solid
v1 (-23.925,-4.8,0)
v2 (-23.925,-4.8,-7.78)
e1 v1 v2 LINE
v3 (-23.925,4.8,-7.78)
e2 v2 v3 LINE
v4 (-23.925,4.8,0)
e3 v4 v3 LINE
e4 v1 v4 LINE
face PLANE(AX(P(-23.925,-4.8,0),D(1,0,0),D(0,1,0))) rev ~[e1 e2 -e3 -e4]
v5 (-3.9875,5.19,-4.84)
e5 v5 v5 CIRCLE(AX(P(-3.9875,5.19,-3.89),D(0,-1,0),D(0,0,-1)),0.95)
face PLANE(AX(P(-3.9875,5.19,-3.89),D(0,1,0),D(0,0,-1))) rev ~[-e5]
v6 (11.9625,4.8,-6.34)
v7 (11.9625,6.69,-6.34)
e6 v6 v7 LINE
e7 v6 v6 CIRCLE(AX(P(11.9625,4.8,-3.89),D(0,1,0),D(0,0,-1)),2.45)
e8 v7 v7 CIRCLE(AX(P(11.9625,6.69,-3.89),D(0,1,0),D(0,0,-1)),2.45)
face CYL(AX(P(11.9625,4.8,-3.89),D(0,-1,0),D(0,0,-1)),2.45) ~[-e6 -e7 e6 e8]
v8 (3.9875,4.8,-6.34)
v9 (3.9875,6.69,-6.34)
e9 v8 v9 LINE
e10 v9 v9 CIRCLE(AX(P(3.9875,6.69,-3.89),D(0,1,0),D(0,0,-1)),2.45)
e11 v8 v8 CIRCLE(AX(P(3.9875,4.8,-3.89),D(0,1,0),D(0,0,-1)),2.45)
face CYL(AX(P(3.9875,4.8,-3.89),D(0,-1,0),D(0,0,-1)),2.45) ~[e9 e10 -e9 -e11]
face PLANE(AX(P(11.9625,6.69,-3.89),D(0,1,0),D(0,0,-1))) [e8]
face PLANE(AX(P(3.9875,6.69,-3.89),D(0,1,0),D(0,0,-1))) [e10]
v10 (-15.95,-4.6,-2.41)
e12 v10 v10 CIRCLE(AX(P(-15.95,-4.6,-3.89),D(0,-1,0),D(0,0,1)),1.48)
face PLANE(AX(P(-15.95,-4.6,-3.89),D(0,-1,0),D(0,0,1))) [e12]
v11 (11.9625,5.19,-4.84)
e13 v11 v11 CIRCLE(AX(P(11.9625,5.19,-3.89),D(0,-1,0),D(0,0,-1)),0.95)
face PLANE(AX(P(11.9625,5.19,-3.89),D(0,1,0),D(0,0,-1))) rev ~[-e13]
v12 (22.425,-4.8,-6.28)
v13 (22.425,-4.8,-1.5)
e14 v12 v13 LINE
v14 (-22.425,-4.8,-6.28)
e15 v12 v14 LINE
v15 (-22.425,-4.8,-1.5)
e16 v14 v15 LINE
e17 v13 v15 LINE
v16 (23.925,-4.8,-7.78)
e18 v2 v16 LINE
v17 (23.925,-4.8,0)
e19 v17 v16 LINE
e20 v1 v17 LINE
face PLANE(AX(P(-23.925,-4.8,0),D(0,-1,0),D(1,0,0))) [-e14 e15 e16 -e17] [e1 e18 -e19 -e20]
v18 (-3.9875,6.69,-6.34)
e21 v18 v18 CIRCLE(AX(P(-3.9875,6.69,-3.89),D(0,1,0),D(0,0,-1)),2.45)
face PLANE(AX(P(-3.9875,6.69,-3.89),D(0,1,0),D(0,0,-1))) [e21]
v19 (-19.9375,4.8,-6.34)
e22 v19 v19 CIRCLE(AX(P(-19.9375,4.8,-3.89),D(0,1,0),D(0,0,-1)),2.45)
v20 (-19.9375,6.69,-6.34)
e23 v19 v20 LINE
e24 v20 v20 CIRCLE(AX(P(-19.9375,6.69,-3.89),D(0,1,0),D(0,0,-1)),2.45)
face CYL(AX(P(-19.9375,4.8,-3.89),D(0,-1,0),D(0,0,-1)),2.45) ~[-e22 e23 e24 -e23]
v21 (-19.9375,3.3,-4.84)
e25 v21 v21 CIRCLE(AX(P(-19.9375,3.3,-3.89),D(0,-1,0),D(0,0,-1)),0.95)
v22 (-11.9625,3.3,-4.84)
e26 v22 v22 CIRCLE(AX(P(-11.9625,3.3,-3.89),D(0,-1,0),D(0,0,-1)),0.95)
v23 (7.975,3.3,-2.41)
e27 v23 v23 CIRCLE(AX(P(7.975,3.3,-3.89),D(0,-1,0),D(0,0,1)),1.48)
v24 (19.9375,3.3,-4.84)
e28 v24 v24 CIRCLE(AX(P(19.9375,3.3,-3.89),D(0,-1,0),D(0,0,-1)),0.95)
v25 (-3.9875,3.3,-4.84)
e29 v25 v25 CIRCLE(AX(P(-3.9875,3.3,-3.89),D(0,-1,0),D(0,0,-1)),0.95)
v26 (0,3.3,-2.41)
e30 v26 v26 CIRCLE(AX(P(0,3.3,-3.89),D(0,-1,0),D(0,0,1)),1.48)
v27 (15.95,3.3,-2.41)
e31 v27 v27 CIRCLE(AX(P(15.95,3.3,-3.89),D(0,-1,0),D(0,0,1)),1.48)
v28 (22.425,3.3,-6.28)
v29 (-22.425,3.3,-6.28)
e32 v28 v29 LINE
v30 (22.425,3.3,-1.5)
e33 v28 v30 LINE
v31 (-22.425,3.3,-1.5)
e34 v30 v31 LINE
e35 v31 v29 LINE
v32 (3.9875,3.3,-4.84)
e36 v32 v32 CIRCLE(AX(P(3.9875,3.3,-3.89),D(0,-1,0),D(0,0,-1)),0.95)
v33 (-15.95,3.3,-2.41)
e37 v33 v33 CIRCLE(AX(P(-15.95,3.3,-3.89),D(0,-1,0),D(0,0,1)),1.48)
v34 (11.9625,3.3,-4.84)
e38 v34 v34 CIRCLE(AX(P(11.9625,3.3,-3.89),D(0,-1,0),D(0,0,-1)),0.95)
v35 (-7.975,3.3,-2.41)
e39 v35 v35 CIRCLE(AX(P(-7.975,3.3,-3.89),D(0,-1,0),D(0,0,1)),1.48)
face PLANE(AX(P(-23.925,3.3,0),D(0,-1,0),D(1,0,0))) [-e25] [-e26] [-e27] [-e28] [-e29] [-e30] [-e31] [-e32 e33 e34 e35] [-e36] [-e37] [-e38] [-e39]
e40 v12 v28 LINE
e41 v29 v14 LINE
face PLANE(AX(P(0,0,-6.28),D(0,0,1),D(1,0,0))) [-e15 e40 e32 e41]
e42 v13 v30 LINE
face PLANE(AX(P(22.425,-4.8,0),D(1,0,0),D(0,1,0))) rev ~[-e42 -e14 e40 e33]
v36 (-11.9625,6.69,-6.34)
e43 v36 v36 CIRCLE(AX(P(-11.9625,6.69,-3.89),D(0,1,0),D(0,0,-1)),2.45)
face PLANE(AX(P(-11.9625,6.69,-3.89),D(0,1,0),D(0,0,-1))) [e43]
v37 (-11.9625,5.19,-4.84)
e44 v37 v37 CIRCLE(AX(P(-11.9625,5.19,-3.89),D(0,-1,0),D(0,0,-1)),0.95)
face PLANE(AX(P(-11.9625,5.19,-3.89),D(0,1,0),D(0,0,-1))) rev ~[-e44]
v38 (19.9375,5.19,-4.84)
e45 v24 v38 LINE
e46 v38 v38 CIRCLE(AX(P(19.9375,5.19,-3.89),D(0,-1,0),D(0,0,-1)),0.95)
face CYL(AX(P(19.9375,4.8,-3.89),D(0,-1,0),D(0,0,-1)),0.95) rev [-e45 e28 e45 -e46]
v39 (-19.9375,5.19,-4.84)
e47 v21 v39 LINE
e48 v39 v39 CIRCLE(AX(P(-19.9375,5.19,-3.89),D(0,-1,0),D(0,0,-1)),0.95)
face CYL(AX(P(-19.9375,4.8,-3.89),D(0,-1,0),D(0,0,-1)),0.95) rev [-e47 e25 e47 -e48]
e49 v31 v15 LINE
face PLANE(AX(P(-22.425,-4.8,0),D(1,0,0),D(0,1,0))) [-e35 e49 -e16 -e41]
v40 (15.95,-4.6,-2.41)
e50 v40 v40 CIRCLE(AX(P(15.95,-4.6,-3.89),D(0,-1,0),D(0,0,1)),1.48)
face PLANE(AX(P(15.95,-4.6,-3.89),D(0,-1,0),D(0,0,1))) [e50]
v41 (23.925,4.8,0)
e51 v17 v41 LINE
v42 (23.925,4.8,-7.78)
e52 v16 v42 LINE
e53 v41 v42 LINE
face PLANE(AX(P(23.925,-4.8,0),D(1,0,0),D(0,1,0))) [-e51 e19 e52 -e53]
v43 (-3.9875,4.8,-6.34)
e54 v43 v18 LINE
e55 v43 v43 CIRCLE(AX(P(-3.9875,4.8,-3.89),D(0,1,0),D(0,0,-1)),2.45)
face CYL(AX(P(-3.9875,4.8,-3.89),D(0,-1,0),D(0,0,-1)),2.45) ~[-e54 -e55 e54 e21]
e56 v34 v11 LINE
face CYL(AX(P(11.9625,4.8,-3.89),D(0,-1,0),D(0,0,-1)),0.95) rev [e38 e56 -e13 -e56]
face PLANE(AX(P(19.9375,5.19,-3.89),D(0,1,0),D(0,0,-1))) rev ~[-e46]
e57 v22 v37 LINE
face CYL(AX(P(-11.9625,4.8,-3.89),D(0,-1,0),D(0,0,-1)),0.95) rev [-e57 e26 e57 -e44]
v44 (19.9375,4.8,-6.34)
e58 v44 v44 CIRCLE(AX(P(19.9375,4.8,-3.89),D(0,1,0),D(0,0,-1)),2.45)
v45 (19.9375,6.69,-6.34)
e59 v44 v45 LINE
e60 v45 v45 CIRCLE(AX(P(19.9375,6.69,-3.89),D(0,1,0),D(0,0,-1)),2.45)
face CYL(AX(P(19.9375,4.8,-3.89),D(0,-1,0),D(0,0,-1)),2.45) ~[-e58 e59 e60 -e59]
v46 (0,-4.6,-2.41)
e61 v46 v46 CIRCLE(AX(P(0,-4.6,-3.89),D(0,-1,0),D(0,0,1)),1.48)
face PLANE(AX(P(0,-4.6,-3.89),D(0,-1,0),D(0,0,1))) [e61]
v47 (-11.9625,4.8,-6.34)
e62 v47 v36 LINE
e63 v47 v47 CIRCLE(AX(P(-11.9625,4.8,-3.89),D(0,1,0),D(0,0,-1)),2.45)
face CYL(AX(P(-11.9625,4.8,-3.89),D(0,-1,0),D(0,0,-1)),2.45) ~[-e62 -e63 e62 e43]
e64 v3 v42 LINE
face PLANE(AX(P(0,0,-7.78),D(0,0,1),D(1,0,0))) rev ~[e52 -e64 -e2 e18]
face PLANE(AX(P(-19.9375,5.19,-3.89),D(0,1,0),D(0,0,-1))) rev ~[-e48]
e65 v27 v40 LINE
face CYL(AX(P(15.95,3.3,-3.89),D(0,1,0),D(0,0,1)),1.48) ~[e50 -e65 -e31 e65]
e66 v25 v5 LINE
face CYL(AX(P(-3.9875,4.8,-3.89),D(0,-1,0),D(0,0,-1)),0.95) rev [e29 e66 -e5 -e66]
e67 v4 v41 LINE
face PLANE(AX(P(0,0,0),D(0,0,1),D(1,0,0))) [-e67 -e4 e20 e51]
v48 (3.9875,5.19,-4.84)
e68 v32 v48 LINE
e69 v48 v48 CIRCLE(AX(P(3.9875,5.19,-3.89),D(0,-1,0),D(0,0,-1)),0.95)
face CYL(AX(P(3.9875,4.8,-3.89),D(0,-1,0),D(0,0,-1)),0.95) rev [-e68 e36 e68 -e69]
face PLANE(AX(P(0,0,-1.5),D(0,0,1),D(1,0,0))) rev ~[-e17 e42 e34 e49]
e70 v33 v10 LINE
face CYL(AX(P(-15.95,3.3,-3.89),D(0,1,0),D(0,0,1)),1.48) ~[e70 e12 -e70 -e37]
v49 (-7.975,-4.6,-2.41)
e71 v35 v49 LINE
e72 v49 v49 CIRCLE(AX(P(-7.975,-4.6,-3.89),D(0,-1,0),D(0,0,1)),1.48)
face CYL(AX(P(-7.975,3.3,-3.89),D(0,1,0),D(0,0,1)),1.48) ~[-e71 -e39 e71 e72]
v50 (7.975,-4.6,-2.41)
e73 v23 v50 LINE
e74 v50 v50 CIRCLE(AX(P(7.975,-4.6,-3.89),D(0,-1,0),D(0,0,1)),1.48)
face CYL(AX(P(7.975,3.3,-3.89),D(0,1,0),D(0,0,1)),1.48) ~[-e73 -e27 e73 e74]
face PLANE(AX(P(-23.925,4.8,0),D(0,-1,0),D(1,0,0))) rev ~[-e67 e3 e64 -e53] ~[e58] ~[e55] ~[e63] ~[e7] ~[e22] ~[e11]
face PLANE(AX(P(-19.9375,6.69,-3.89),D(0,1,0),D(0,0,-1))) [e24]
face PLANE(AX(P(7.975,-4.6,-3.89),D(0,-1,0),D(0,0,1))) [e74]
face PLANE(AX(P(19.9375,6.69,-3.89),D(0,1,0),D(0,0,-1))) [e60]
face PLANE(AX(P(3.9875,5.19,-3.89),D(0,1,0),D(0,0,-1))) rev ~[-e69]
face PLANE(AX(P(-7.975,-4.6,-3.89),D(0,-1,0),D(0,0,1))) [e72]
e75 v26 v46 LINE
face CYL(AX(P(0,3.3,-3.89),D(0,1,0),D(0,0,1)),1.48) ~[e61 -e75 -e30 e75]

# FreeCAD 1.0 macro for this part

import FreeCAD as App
import Part
import Sketcher
from FreeCAD import Vector


def faces_at(feature, points):
    """Names of the faces that lie closest to the given points."""
    faces = feature.Shape.Faces
    near = lambda p: min(range(len(faces)), key=lambda i: faces[i].distToShape(Part.Vertex(*p))[0])
    return sorted({f"Face{near(p) + 1}" for p in points})

doc = App.newDocument("Part")
params = doc.addObject("Spreadsheet::Sheet", "Params")
for row, (alias, value) in enumerate([
    ("sketch1_height", "9.6 mm"),
    ("sketch1_width", "47.85 mm"),
    ("pad1_length", "7.78 mm"),
    ("sketch2_diameter", "4.9 mm"),
    ("pad2_length", "1.89 mm"),
    ("thickness_wall", "1.5 mm"),
    ("sketch3_diameter", "2.96 mm"),
    ("pad3_length", "7.9 mm"),
], start=1):
    params.set(f"A{row}", alias)
    params.set(f"B{row}", "=" + value)
    params.setAlias(f"B{row}", alias)

body = doc.addObject("PartDesign::Body", "Body")

sketch1 = doc.addObject("Sketcher::SketchObject", "Sketch")
body.addObject(sketch1)
sketch1.AttachmentSupport = (doc.XY_Plane, [""])
sketch1.MapMode = "FlatFace"
sketch1.addGeometry(Part.LineSegment(Vector(-23.925, 4.8, 0), Vector(-23.925, -4.8, 0)), False)
sketch1.addGeometry(Part.LineSegment(Vector(-23.925, -4.8, 0), Vector(23.925, -4.8, 0)), False)
sketch1.addGeometry(Part.LineSegment(Vector(23.925, -4.8, 0), Vector(23.925, 4.8, 0)), False)
sketch1.addGeometry(Part.LineSegment(Vector(23.925, 4.8, 0), Vector(-23.925, 4.8, 0)), False)
sketch1.addConstraint(Sketcher.Constraint("Coincident", 0, 2, 1, 1))
sketch1.addConstraint(Sketcher.Constraint("Coincident", 1, 2, 2, 1))
sketch1.addConstraint(Sketcher.Constraint("Coincident", 2, 2, 3, 1))
sketch1.addConstraint(Sketcher.Constraint("Coincident", 3, 2, 0, 1))
sketch1.addConstraint(Sketcher.Constraint("Vertical", 0))
sketch1.addConstraint(Sketcher.Constraint("Horizontal", 1))
sketch1.addConstraint(Sketcher.Constraint("Vertical", 2))
sketch1.addConstraint(Sketcher.Constraint("Horizontal", 3))
sketch1.addConstraint(Sketcher.Constraint("Symmetric", 0, 2, 2, 2, -1, 1))
sketch1.addConstraint(Sketcher.Constraint("DistanceY", 0, 2, 0, 1, 9.6))
sketch1.addConstraint(Sketcher.Constraint("DistanceX", 1, 1, 1, 2, 47.85))
sketch1.setExpression("Constraints[9]", "Params.sketch1_height")
sketch1.setExpression("Constraints[10]", "Params.sketch1_width")
pad1 = doc.addObject("PartDesign::Pad", "Pad")
body.addObject(pad1)
pad1.Profile = sketch1
pad1.setExpression("Length", "Params.pad1_length")
pad1.Reversed = True

sketch2 = doc.addObject("Sketcher::SketchObject", "Sketch001")
body.addObject(sketch2)
sketch2.AttachmentSupport = (doc.XZ_Plane, [""])
sketch2.MapMode = "FlatFace"
sketch2.AttachmentOffset = App.Placement(Vector(0, 0, -4.8), App.Rotation())
sketch2.addGeometry(Part.Circle(Vector(-19.9375, -3.89, 0), Vector(0, 0, 1), 2.45), False)
sketch2.addGeometry(Part.Circle(Vector(-11.9625, -3.89, 0), Vector(0, 0, 1), 2.45), False)
sketch2.addGeometry(Part.Circle(Vector(-3.9875, -3.89, 0), Vector(0, 0, 1), 2.45), False)
sketch2.addGeometry(Part.Circle(Vector(3.9875, -3.89, 0), Vector(0, 0, 1), 2.45), False)
sketch2.addGeometry(Part.Circle(Vector(11.9625, -3.89, 0), Vector(0, 0, 1), 2.45), False)
sketch2.addGeometry(Part.Circle(Vector(19.9375, -3.89, 0), Vector(0, 0, 1), 2.45), False)
sketch2.addConstraint(Sketcher.Constraint("Equal", 0, 1))
sketch2.addConstraint(Sketcher.Constraint("Equal", 1, 2))
sketch2.addConstraint(Sketcher.Constraint("Equal", 2, 3))
sketch2.addConstraint(Sketcher.Constraint("Equal", 3, 4))
sketch2.addConstraint(Sketcher.Constraint("Equal", 4, 5))
sketch2.addConstraint(Sketcher.Constraint("Symmetric", 2, 3, 3, 3, -2))
sketch2.addConstraint(Sketcher.Constraint("Symmetric", 1, 3, 4, 3, -2))
sketch2.addConstraint(Sketcher.Constraint("Symmetric", 0, 3, 5, 3, -2))
sketch2.addConstraint(Sketcher.Constraint("Horizontal", 0, 3, 1, 3))
sketch2.addConstraint(Sketcher.Constraint("Horizontal", 1, 3, 2, 3))
sketch2.addConstraint(Sketcher.Constraint("Diameter", 0, 4.9))
sketch2.addConstraint(Sketcher.Constraint("DistanceX", 0, 3, 4, 3, 31.9))
sketch2.addConstraint(Sketcher.Constraint("DistanceY", 0, 3, -1, 1, 3.89))
sketch2.addConstraint(Sketcher.Constraint("DistanceX", 0, 3, 2, 3, 15.95))
sketch2.addConstraint(Sketcher.Constraint("DistanceX", 0, 3, 1, 3, 7.975))
sketch2.setExpression("Constraints[10]", "Params.sketch2_diameter")
pad2 = doc.addObject("PartDesign::Pad", "Pad001")
body.addObject(pad2)
pad2.Profile = sketch2
pad2.setExpression("Length", "Params.pad2_length")
pad2.Reversed = True
doc.recompute()

thickness = doc.addObject("PartDesign::Thickness", "Thickness")
body.addObject(thickness)
thickness.Base = (pad2, faces_at(pad2, [(0, -4.8, -3.89)]))
thickness.setExpression("Value", "Params.thickness_wall")
thickness.Reversed = True
thickness.Join = "Intersection"

sketch3 = doc.addObject("Sketcher::SketchObject", "Sketch002")
body.addObject(sketch3)
sketch3.AttachmentSupport = (doc.XZ_Plane, [""])
sketch3.MapMode = "FlatFace"
sketch3.AttachmentOffset = App.Placement(Vector(0, 0, -3.3), App.Rotation())
sketch3.addGeometry(Part.Circle(Vector(-15.95, -3.89, 0), Vector(0, 0, 1), 1.48), False)
sketch3.addGeometry(Part.Circle(Vector(-7.975, -3.89, 0), Vector(0, 0, 1), 1.48), False)
sketch3.addGeometry(Part.Circle(Vector(0, -3.89, 0), Vector(0, 0, 1), 1.48), False)
sketch3.addGeometry(Part.Circle(Vector(7.975, -3.89, 0), Vector(0, 0, 1), 1.48), False)
sketch3.addGeometry(Part.Circle(Vector(15.95, -3.89, 0), Vector(0, 0, 1), 1.48), False)
sketch3.addConstraint(Sketcher.Constraint("Equal", 0, 1))
sketch3.addConstraint(Sketcher.Constraint("Equal", 1, 2))
sketch3.addConstraint(Sketcher.Constraint("Equal", 2, 3))
sketch3.addConstraint(Sketcher.Constraint("Equal", 3, 4))
sketch3.addConstraint(Sketcher.Constraint("Symmetric", 1, 3, 3, 3, -2))
sketch3.addConstraint(Sketcher.Constraint("Symmetric", 0, 3, 4, 3, -2))
sketch3.addConstraint(Sketcher.Constraint("PointOnObject", 2, 3, -2))
sketch3.addConstraint(Sketcher.Constraint("Horizontal", 0, 3, 1, 3))
sketch3.addConstraint(Sketcher.Constraint("Horizontal", 1, 3, 2, 3))
sketch3.addConstraint(Sketcher.Constraint("Diameter", 0, 2.96))
sketch3.addConstraint(Sketcher.Constraint("DistanceX", 0, 3, 4, 3, 31.9))
sketch3.addConstraint(Sketcher.Constraint("DistanceY", 0, 3, -1, 1, 3.89))
sketch3.addConstraint(Sketcher.Constraint("DistanceX", 1, 3, 3, 3, 15.95))
sketch3.setExpression("Constraints[9]", "Params.sketch3_diameter")
pad3 = doc.addObject("PartDesign::Pad", "Pad002")
body.addObject(pad3)
pad3.Profile = sketch3
pad3.setExpression("Length", "Params.pad3_length")

doc.recompute()
